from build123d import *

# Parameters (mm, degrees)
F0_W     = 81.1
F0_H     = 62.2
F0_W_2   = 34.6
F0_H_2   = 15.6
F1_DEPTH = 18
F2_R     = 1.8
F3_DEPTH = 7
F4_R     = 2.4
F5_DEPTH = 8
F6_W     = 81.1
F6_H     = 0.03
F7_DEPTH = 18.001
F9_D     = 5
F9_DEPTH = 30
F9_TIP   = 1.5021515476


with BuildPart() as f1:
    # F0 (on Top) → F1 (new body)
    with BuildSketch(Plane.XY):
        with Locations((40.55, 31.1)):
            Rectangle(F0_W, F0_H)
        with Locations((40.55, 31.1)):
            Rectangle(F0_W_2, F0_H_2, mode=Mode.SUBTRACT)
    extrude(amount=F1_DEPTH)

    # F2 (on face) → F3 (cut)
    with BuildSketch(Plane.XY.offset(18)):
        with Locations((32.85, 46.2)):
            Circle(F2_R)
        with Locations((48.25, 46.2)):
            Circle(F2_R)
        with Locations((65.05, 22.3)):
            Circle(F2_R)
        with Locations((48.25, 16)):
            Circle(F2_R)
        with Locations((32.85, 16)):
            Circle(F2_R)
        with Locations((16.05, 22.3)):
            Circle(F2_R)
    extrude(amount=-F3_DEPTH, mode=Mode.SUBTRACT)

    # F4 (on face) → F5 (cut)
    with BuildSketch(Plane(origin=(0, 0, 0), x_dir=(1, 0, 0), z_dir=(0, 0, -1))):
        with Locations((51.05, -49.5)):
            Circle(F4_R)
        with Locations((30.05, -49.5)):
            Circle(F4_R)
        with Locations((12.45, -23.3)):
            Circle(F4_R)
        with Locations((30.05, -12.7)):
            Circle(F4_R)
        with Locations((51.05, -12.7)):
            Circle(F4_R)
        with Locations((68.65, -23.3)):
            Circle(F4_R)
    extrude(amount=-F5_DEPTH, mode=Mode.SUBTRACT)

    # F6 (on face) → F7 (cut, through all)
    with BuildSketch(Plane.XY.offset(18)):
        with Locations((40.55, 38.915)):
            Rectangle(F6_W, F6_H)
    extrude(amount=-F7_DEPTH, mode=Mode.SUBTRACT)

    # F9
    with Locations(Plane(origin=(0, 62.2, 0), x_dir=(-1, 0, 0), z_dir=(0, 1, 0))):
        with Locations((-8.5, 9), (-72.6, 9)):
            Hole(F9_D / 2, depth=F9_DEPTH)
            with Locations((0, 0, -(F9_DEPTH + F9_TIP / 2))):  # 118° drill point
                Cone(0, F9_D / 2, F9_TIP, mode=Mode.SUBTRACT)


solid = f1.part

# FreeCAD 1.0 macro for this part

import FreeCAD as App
import Part
import Sketcher

V = App.Vector
Q = App.Units.Quantity


def add_polygon(sketch, points):
    """Adds a closed chain of lines whose ends are joined by coincident constraints."""
    first, n = sketch.GeometryCount, len(points)
    for a, b in zip(points, points[1:] + points[:1]):
        sketch.addGeometry(Part.LineSegment(App.Vector(*a, 0), App.Vector(*b, 0)), False)
    for i in range(n):
        sketch.addConstraint(Sketcher.Constraint("Coincident", first + i, 2, first + (i + 1) % n, 1))

doc = App.newDocument("Part")
body = doc.addObject("PartDesign::Body", "Body")
body.AllowCompound = True

sketch1 = doc.addObject("Sketcher::SketchObject", "Sketch")
body.addObject(sketch1)
sketch1.AttachmentSupport = (doc.XY_Plane, [""])
sketch1.MapMode = "FlatFace"
add_polygon(sketch1, [(0, 62.2), (0, 0), (81.1, 0), (81.1, 62.2)])
add_polygon(sketch1, [(57.85, 23.3), (23.25, 23.3), (23.25, 38.9), (57.85, 38.9)])
sketch1.addConstraint([
    Sketcher.Constraint("Vertical", 0),
    Sketcher.Constraint("Horizontal", 1),
    Sketcher.Constraint("Vertical", 2),
    Sketcher.Constraint("Horizontal", 3),
    Sketcher.Constraint("Horizontal", 4),
    Sketcher.Constraint("Vertical", 5),
    Sketcher.Constraint("Horizontal", 6),
    Sketcher.Constraint("Vertical", 7),
    Sketcher.Constraint("Coincident", 0, 2, -1, 1),
    Sketcher.Constraint("DistanceX", 1, 1, 1, 2, Q("81.1 mm")),
    Sketcher.Constraint("DistanceX", 4, 2, 4, 1, Q("34.6 mm")),
    Sketcher.Constraint("DistanceY", 0, 2, 0, 1, Q("62.2 mm")),
    Sketcher.Constraint("DistanceY", 5, 1, 5, 2, Q("15.6 mm")),
    Sketcher.Constraint("DistanceY", -1, 1, 4, 2, Q("23.3 mm")),
    Sketcher.Constraint("DistanceX", -1, 1, 4, 2, Q("23.25 mm")),
])
pad1 = doc.addObject("PartDesign::Pad", "Pad")
body.addObject(pad1)
pad1.Profile = sketch1
pad1.Length = 18

sketch2 = doc.addObject("Sketcher::SketchObject", "Sketch001")
body.addObject(sketch2)
sketch2.AttachmentSupport = (doc.XY_Plane, [""])
sketch2.MapMode = "FlatFace"
sketch2.AttachmentOffset = App.Placement(V(0, 0, 18), App.Rotation())
sketch2.addGeometry([
    Part.Circle(V(32.85, 46.2, 0), V(0, 0, 1), 1.8),
    Part.Circle(V(48.25, 46.2, 0), V(0, 0, 1), 1.8),
    Part.Circle(V(65.05, 22.3, 0), V(0, 0, 1), 1.8),
    Part.Circle(V(48.25, 16, 0), V(0, 0, 1), 1.8),
    Part.Circle(V(32.85, 16, 0), V(0, 0, 1), 1.8),
    Part.Circle(V(16.05, 22.3, 0), V(0, 0, 1), 1.8),
], False)
sketch2.addConstraint([
    Sketcher.Constraint("Equal", 0, 1),
    Sketcher.Constraint("Equal", 1, 2),
    Sketcher.Constraint("Equal", 2, 3),
    Sketcher.Constraint("Equal", 3, 4),
    Sketcher.Constraint("Equal", 4, 5),
    Sketcher.Constraint("Horizontal", 0, 3, 1, 3),
    Sketcher.Constraint("Horizontal", 3, 3, 4, 3),
    Sketcher.Constraint("Horizontal", 2, 3, 5, 3),
    Sketcher.Constraint("Vertical", 1, 3, 3, 3),
    Sketcher.Constraint("Vertical", 0, 3, 4, 3),
    Sketcher.Constraint("Diameter", 0, Q("3.6 mm")),
    Sketcher.Constraint("DistanceY", -1, 1, 3, 3, Q("16 mm")),
    Sketcher.Constraint("DistanceX", 5, 3, 2, 3, Q("49 mm")),
    Sketcher.Constraint("DistanceY", -1, 1, 0, 3, Q("46.2 mm")),
    Sketcher.Constraint("DistanceY", -1, 1, 2, 3, Q("22.3 mm")),
    Sketcher.Constraint("DistanceX", 0, 3, 1, 3, Q("15.4 mm")),
    Sketcher.Constraint("DistanceX", 1, 3, 2, 3, Q("16.8 mm")),
    Sketcher.Constraint("DistanceX", -1, 1, 0, 3, Q("32.85 mm")),
])
pocket1 = doc.addObject("PartDesign::Pocket", "Pocket")
body.addObject(pocket1)
pocket1.Profile = sketch2
pocket1.Length = 7

sketch3 = doc.addObject("Sketcher::SketchObject", "Sketch002")
body.addObject(sketch3)
sketch3.AttachmentSupport = (doc.XY_Plane, [""])
sketch3.MapMode = "FlatFace"
sketch3.addGeometry([
    Part.Circle(V(51.05, 49.5, 0), V(0, 0, 1), 2.4),
    Part.Circle(V(30.05, 49.5, 0), V(0, 0, 1), 2.4),
    Part.Circle(V(12.45, 23.3, 0), V(0, 0, 1), 2.4),
    Part.Circle(V(30.05, 12.7, 0), V(0, 0, 1), 2.4),
    Part.Circle(V(51.05, 12.7, 0), V(0, 0, 1), 2.4),
    Part.Circle(V(68.65, 23.3, 0), V(0, 0, 1), 2.4),
], False)
sketch3.addConstraint([
    Sketcher.Constraint("Equal", 0, 1),
    Sketcher.Constraint("Equal", 1, 2),
    Sketcher.Constraint("Equal", 2, 3),
    Sketcher.Constraint("Equal", 3, 4),
    Sketcher.Constraint("Equal", 4, 5),
    Sketcher.Constraint("Horizontal", 0, 3, 1, 3),
    Sketcher.Constraint("Horizontal", 3, 3, 4, 3),
    Sketcher.Constraint("Horizontal", 2, 3, 5, 3),
    Sketcher.Constraint("Vertical", 1, 3, 3, 3),
    Sketcher.Constraint("Vertical", 0, 3, 4, 3),
    Sketcher.Constraint("Diameter", 0, Q("4.8 mm")),
    Sketcher.Constraint("DistanceX", 1, 3, 0, 3, Q("21 mm")),
    Sketcher.Constraint("DistanceY", -1, 1, 0, 3, Q("49.5 mm")),
    Sketcher.Constraint("DistanceY", -1, 1, 2, 3, Q("23.3 mm")),
    Sketcher.Constraint("DistanceY", -1, 1, 3, 3, Q("12.7 mm")),
    Sketcher.Constraint("DistanceX", 2, 3, 1, 3, Q("17.6 mm")),
    Sketcher.Constraint("DistanceX", 4, 3, 5, 3, Q("17.6 mm")),
    Sketcher.Constraint("DistanceX", -1, 1, 0, 3, Q("51.05 mm")),
])
pocket2 = doc.addObject("PartDesign::Pocket", "Pocket001")
body.addObject(pocket2)
pocket2.Profile = sketch3
pocket2.Length = 8
pocket2.Reversed = True

sketch4 = doc.addObject("Sketcher::SketchObject", "Sketch003")
body.addObject(sketch4)
sketch4.AttachmentSupport = (doc.XY_Plane, [""])
sketch4.MapMode = "FlatFace"
sketch4.AttachmentOffset = App.Placement(V(0, 0, 18), App.Rotation())
add_polygon(sketch4, [(0, 38.93), (0, 38.9), (81.1, 38.9), (81.1, 38.93)])
sketch4.addConstraint([
    Sketcher.Constraint("Vertical", 0),
    Sketcher.Constraint("Horizontal", 1),
    Sketcher.Constraint("Vertical", 2),
    Sketcher.Constraint("Horizontal", 3),
    Sketcher.Constraint("PointOnObject", 0, 2, -2),
    Sketcher.Constraint("DistanceX", 1, 1, 1, 2, Q("81.1 mm")),
    Sketcher.Constraint("DistanceY", 0, 2, 0, 1, Q("0.03 mm")),
    Sketcher.Constraint("DistanceY", -1, 1, 0, 2, Q("38.9 mm")),
])
pocket3 = doc.addObject("PartDesign::Pocket", "Pocket002")
body.addObject(pocket3)
pocket3.Profile = sketch4
pocket3.Type = "ThroughAll"

sketch5 = doc.addObject("Sketcher::SketchObject", "Sketch004")
body.addObject(sketch5)
sketch5.AttachmentSupport = (doc.XZ_Plane, [""])
sketch5.MapMode = "FlatFace"
sketch5.AttachmentOffset = App.Placement(V(0, 0, -62.2), App.Rotation())
sketch5.addGeometry([
    Part.Circle(V(8.5, 9, 0), V(0, 0, 1), 2.5),
    Part.Circle(V(72.6, 9, 0), V(0, 0, 1), 2.5),
], False)
sketch5.addConstraint([
    Sketcher.Constraint("Equal", 0, 1),
    Sketcher.Constraint("Horizontal", 0, 3, 1, 3),
    Sketcher.Constraint("Diameter", 0, Q("5 mm")),
    Sketcher.Constraint("DistanceY", -1, 1, 0, 3, Q("9 mm")),
    Sketcher.Constraint("DistanceX", -1, 1, 0, 3, Q("8.5 mm")),
    Sketcher.Constraint("DistanceX", -1, 1, 1, 3, Q("72.6 mm")),
])
doc.recompute()
hole = doc.addObject("PartDesign::Hole", "Hole")
body.addObject(hole)
hole.Profile = sketch5
hole.ThreadType = "None"
hole.Diameter = 5
hole.DepthType = "Dimension"
hole.Depth = 30
hole.DrillPoint = "Angled"
hole.DrillPointAngle = 118
hole.Reversed = True

doc.recompute()
